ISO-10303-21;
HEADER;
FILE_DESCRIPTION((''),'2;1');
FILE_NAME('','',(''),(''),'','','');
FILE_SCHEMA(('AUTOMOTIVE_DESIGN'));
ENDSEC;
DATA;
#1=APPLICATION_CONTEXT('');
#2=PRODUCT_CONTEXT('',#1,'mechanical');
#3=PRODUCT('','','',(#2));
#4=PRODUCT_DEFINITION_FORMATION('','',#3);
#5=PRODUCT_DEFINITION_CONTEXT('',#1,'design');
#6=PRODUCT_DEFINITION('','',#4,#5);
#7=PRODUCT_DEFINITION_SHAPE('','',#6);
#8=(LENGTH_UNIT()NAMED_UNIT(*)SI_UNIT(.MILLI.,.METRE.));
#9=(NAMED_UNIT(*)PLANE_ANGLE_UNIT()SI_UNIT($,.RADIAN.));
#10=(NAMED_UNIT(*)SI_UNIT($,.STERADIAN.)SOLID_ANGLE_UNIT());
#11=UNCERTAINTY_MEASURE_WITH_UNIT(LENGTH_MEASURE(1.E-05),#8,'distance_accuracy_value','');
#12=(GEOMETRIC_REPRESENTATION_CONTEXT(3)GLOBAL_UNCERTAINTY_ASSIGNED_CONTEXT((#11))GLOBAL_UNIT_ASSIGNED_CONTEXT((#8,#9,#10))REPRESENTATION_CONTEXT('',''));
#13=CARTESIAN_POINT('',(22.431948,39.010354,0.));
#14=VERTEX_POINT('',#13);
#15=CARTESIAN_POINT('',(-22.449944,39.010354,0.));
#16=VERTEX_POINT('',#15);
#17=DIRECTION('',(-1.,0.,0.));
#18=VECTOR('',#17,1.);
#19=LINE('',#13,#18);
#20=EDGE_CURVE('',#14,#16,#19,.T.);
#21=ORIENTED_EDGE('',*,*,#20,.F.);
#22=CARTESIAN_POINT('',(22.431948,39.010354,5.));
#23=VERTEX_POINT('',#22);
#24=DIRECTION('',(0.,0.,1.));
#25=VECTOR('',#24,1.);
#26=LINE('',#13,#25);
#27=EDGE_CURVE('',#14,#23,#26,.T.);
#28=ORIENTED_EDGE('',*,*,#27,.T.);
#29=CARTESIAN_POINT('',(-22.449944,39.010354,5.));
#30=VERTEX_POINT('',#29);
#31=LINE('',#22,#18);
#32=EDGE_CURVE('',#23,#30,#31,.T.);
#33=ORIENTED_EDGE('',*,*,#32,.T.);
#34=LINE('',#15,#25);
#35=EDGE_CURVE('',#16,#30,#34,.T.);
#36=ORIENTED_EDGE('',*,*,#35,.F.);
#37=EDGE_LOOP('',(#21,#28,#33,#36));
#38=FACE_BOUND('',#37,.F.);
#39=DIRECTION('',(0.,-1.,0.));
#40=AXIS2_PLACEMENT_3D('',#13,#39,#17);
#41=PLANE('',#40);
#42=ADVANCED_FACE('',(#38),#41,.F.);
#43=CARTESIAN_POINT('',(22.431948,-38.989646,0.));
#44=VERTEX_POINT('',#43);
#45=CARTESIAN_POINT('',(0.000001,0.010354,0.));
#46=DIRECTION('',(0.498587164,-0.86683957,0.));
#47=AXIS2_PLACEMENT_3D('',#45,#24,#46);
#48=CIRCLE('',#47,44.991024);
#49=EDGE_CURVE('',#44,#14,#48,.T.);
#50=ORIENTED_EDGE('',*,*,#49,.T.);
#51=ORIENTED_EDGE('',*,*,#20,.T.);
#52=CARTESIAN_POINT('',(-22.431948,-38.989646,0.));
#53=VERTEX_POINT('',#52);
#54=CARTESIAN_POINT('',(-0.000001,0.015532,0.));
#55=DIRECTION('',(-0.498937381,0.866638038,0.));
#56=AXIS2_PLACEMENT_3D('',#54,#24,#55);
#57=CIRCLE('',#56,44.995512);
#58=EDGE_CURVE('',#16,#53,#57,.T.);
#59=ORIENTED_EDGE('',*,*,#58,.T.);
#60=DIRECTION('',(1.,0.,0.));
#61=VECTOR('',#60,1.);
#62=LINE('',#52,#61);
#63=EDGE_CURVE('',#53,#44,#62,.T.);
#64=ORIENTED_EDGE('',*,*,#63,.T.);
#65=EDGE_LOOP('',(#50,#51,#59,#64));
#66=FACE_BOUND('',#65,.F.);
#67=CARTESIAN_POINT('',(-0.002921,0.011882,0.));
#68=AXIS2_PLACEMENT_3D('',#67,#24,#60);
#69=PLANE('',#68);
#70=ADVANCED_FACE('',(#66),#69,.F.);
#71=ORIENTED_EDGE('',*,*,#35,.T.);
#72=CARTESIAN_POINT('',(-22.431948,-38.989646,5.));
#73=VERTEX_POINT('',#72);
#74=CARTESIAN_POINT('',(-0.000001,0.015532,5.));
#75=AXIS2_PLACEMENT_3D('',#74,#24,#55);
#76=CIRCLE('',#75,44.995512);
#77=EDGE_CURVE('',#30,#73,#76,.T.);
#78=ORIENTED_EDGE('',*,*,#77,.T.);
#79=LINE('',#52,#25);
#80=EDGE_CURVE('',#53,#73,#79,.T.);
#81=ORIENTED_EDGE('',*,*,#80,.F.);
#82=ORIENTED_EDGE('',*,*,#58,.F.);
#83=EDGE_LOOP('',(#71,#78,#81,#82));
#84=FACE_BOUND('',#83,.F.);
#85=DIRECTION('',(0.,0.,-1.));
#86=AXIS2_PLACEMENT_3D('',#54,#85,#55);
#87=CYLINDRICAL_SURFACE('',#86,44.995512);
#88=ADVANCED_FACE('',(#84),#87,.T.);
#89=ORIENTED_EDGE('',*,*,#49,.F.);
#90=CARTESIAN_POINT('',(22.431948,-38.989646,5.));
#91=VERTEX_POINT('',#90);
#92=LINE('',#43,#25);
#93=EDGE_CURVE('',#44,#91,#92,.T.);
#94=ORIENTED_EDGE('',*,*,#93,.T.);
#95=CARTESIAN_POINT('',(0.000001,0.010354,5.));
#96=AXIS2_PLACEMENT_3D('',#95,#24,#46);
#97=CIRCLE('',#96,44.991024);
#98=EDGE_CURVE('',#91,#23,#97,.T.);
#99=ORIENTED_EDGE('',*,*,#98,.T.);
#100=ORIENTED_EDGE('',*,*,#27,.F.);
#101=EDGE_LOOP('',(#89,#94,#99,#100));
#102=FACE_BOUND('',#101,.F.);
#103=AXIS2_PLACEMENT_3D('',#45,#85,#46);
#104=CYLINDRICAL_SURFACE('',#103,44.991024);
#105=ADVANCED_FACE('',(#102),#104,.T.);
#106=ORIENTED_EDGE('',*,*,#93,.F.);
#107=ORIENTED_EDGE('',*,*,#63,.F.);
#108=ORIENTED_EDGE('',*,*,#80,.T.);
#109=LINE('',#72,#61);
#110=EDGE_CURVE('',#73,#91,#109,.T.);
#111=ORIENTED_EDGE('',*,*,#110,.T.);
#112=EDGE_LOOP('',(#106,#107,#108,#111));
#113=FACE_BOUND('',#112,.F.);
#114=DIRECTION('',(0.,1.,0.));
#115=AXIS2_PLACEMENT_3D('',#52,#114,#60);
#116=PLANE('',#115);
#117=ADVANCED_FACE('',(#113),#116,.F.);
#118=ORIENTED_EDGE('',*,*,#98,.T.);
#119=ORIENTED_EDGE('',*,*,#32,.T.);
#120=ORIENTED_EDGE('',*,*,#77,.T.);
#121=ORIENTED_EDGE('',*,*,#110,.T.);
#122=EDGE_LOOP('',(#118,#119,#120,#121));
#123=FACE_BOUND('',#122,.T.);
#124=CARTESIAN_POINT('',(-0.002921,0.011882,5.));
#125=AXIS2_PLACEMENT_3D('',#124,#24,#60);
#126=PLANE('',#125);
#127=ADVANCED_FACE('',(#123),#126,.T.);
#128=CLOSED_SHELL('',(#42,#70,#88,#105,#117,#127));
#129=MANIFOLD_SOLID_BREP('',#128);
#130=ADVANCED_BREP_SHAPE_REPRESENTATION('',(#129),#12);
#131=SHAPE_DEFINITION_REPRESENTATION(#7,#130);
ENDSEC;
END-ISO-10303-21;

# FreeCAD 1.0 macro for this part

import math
import FreeCAD as App
import Part
import Sketcher
Q = App.Units.Quantity

doc = App.newDocument("Part")
params = doc.addObject("Spreadsheet::Sheet", "Params")
for row, (alias, value) in enumerate([
    ("sketch1_height", "39 mm"),
    ("pad1_length", "5 mm"),
], start=1):
    params.set(f"A{row}", alias)
    params.set(f"B{row}", "=" + value)
    params.setAlias(f"B{row}", alias)

body = doc.addObject("PartDesign::Body", "Body")

sketch1 = body.newObject("Sketcher::SketchObject", "Sketch")
sketch1.AttachmentSupport = (doc.getObject("XY_Plane"), [""])
sketch1.MapMode = "FlatFace"
sketch1.addGeometry(Part.ArcOfCircle(Part.Circle(App.Vector(0, 0, 0), App.Vector(0, 0, 1), 45), math.radians(-60), math.radians(60)), False)
sketch1.addGeometry(Part.LineSegment(App.Vector(22, 39, 0), App.Vector(-22, 39, 0)), False)
sketch1.addGeometry(Part.ArcOfCircle(Part.Circle(App.Vector(0, 0, 0), App.Vector(0, 0, 1), 45), math.radians(120), math.radians(240)), False)
sketch1.addGeometry(Part.LineSegment(App.Vector(-22, -39, 0), App.Vector(22, -39, 0)), False)
sketch1.addConstraint(Sketcher.Constraint("Coincident", 0, 2, 1, 1))
sketch1.addConstraint(Sketcher.Constraint("Coincident", 1, 2, 2, 1))
sketch1.addConstraint(Sketcher.Constraint("Coincident", 2, 2, 3, 1))
sketch1.addConstraint(Sketcher.Constraint("Coincident", 3, 2, 0, 1))
sketch1.addConstraint(Sketcher.Constraint("Horizontal", 1))
sketch1.addConstraint(Sketcher.Constraint("Horizontal", 3))
sketch1.addConstraint(Sketcher.Constraint("PointOnObject", 0, 3, -2))
sketch1.addConstraint(Sketcher.Constraint("PointOnObject", 2, 3, -2))
sketch1.addConstraint(Sketcher.Constraint("Vertical", 0, 2, 3, 2))
sketch1.addConstraint(Sketcher.Constraint("DistanceY", 0, 3, 0, 2, Q("39 mm")))
sketch1.addConstraint(Sketcher.Constraint("Radius", 0, Q("44.991024 mm")))
sketch1.addConstraint(Sketcher.Constraint("Radius", 2, Q("44.995512 mm")))
sketch1.addConstraint(Sketcher.Constraint("DistanceX", 1, 2, 1, 1, Q("44.881892 mm")))
sketch1.addConstraint(Sketcher.Constraint("DistanceY", -1, 1, 2, 3, Q("0.015532 mm")))
sketch1.setExpression("Constraints[9]", "Params.sketch1_height")
pad1 = body.newObject("PartDesign::Pad", "Pad")
pad1.Profile = sketch1
pad1.setExpression("Length", "Params.pad1_length")

doc.recompute()
